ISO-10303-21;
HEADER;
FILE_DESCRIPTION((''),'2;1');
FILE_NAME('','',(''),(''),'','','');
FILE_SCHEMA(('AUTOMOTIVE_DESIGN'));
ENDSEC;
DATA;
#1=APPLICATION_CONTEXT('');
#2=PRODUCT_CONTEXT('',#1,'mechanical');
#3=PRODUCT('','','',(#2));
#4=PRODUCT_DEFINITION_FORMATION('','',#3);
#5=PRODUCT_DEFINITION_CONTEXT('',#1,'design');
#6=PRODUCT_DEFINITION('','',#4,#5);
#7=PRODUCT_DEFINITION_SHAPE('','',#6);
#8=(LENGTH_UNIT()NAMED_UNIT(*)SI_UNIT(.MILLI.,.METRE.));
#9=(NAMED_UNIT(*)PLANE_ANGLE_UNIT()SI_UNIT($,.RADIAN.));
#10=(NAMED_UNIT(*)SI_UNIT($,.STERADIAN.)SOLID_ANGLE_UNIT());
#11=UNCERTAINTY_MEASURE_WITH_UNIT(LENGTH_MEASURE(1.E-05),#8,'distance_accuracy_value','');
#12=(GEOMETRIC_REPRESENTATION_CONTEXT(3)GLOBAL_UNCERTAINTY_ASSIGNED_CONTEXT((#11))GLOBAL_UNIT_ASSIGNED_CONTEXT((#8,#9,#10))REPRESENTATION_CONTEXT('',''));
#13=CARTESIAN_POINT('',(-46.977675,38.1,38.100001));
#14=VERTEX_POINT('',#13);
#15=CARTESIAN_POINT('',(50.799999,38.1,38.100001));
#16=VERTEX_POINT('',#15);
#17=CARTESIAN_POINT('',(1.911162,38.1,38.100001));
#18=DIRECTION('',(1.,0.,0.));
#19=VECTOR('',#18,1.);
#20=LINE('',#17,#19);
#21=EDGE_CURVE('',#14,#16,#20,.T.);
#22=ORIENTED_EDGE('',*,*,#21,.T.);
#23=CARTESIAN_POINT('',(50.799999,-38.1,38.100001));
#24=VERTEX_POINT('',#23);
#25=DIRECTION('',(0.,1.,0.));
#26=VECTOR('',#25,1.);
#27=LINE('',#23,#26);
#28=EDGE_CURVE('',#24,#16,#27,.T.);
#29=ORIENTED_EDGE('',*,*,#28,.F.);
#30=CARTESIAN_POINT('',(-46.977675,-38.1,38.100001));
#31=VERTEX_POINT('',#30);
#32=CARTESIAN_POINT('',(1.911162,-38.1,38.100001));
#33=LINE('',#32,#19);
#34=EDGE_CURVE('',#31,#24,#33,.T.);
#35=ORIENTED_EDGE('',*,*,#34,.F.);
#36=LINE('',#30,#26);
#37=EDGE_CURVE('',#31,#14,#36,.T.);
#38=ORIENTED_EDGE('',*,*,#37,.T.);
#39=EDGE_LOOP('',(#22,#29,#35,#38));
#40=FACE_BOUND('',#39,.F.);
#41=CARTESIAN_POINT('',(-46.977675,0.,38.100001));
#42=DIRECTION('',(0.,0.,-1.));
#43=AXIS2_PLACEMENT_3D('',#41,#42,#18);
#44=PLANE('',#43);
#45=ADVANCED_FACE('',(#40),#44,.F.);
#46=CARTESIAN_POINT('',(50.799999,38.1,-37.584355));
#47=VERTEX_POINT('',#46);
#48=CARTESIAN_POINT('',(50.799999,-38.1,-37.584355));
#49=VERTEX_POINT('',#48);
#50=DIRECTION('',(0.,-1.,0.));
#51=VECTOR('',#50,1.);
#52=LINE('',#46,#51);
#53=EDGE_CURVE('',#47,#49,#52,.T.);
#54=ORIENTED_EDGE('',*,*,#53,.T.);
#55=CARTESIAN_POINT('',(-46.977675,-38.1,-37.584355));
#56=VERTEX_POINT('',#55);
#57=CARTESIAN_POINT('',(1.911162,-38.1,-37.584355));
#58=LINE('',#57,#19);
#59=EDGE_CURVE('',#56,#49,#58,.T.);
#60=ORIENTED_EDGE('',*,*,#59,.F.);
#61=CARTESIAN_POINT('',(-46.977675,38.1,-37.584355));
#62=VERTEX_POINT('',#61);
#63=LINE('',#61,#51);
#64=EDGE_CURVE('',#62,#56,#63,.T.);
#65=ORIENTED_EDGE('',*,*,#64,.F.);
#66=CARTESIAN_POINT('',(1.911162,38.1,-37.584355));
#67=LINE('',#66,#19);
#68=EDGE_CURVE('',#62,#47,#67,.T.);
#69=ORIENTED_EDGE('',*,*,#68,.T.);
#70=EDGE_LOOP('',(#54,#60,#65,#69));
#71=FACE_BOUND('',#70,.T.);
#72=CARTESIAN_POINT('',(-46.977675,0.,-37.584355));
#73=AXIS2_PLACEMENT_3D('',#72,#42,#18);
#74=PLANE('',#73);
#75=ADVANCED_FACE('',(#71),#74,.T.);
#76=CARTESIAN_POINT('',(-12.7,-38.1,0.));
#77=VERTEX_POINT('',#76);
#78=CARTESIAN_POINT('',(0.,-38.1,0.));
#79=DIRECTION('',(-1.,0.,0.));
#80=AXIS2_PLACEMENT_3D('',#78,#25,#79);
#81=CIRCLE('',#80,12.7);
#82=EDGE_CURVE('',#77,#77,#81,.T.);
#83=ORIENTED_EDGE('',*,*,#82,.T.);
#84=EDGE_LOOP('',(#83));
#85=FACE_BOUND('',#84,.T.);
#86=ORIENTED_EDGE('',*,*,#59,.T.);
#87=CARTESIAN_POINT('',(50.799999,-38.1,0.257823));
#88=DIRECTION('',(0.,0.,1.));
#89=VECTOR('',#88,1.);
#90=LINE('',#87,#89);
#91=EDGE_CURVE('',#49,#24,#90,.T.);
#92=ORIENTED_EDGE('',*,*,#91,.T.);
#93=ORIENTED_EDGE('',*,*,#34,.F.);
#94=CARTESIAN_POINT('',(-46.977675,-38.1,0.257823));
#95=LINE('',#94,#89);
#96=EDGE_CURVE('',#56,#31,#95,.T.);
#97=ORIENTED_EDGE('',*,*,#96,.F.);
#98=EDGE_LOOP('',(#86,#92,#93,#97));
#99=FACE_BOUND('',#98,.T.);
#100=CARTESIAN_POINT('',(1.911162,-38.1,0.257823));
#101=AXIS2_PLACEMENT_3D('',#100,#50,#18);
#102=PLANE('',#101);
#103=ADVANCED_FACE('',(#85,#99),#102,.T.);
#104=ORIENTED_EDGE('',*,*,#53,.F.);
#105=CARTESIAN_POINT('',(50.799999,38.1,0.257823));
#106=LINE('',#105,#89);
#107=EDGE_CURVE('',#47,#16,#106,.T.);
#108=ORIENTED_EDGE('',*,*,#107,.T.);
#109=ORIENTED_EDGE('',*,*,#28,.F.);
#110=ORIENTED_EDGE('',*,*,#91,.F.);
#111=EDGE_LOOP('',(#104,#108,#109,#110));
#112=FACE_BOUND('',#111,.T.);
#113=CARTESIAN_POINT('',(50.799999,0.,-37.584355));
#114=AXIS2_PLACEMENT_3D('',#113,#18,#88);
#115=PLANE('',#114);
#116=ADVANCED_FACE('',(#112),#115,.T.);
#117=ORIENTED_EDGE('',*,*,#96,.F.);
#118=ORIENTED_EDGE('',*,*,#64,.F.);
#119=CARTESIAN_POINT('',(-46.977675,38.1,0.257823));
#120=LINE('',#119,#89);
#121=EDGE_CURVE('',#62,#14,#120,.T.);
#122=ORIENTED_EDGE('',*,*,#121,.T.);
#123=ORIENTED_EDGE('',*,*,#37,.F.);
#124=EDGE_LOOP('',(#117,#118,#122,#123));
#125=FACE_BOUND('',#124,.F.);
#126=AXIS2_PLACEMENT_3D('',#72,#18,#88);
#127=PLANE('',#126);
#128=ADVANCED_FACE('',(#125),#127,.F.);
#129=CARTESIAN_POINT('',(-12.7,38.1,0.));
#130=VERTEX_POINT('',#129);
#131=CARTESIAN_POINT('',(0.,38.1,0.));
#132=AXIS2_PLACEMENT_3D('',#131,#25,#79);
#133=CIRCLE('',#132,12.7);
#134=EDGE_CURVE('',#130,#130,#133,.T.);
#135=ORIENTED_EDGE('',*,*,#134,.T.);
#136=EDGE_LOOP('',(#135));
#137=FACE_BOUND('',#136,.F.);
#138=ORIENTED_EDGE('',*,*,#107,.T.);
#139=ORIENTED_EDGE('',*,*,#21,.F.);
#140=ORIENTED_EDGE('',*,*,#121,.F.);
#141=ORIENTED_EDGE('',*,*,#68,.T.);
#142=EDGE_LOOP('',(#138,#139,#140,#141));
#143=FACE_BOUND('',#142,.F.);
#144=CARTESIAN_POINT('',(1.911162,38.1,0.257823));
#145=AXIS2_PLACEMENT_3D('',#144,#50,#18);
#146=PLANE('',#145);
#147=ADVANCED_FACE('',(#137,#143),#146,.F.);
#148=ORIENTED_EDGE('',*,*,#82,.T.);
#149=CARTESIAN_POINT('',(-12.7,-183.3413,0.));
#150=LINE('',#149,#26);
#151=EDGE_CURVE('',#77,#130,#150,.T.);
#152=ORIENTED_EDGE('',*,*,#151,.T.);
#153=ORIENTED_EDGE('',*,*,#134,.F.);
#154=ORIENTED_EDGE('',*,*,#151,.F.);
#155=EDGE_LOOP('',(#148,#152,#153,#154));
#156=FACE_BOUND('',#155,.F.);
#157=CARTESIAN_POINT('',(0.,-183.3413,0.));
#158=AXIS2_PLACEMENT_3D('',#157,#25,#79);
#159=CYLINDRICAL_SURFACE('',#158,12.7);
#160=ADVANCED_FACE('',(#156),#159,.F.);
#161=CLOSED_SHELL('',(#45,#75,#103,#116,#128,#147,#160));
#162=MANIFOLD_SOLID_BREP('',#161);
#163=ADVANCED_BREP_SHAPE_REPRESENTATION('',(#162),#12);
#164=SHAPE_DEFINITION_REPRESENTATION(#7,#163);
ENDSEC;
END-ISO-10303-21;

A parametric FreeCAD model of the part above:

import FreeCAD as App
import Part
import Sketcher
from FreeCAD import Vector
Q = App.Units.Quantity


def add_polygon(sketch, points):
    """Adds a closed chain of lines whose ends are joined by coincident constraints."""
    first, n = sketch.GeometryCount, len(points)
    for a, b in zip(points, points[1:] + points[:1]):
        sketch.addGeometry(Part.LineSegment(App.Vector(*a, 0), App.Vector(*b, 0)), False)
    for i in range(n):
        sketch.addConstraint(Sketcher.Constraint("Coincident", first + i, 2, first + (i + 1) % n, 1))

doc = App.newDocument("Part")
body = doc.addObject("PartDesign::Body", "Body")

sketch1 = body.newObject("Sketcher::SketchObject", "Sketch")
sketch1.AttachmentSupport = (doc.getObject("XZ_Plane"), [""])
sketch1.MapMode = "FlatFace"
add_polygon(sketch1, [(-47, 38), (-47, -38), (51, -38), (51, 38)])
sketch1.addConstraint([
    Sketcher.Constraint("Vertical", 0),
    Sketcher.Constraint("Horizontal", 1),
    Sketcher.Constraint("Vertical", 2),
    Sketcher.Constraint("Horizontal", 3),
    Sketcher.Constraint("DistanceX", -1, 1, 1, 2, Q("2 in")),
    Sketcher.Constraint("DistanceY", -1, 1, 2, 2, Q("1.5 in")),
    Sketcher.Constraint("DistanceX", 1, 1, 1, 2, Q("97.777675 mm")),
    Sketcher.Constraint("DistanceY", 0, 2, 0, 1, Q("75.684355 mm")),
])
pad1 = body.newObject("PartDesign::Pad", "Pad")
pad1.Profile = sketch1
pad1.Length = Q("3 in")
pad1.Midplane = True

sketch2 = body.newObject("Sketcher::SketchObject", "Sketch001")
sketch2.AttachmentSupport = (doc.getObject("XZ_Plane"), [""])
sketch2.MapMode = "FlatFace"
sketch2.AttachmentOffset = App.Placement(Vector(0, 0, 1.5 * 25.4), App.Rotation())
sketch2.addGeometry(Part.Circle(Vector(0, 0, 0), Vector(0, 0, 1), 13), False)
sketch2.addConstraint([
    Sketcher.Constraint("Coincident", 0, 3, -1, 1),
    Sketcher.Constraint("Diameter", 0, Q("1 in")),
])
doc.recompute()
hole = body.newObject("PartDesign::Hole", "Hole")
hole.Profile = sketch2
hole.ThreadType = "None"
hole.Diameter = Q("1 in")
hole.DepthType = "ThroughAll"

doc.recompute()
